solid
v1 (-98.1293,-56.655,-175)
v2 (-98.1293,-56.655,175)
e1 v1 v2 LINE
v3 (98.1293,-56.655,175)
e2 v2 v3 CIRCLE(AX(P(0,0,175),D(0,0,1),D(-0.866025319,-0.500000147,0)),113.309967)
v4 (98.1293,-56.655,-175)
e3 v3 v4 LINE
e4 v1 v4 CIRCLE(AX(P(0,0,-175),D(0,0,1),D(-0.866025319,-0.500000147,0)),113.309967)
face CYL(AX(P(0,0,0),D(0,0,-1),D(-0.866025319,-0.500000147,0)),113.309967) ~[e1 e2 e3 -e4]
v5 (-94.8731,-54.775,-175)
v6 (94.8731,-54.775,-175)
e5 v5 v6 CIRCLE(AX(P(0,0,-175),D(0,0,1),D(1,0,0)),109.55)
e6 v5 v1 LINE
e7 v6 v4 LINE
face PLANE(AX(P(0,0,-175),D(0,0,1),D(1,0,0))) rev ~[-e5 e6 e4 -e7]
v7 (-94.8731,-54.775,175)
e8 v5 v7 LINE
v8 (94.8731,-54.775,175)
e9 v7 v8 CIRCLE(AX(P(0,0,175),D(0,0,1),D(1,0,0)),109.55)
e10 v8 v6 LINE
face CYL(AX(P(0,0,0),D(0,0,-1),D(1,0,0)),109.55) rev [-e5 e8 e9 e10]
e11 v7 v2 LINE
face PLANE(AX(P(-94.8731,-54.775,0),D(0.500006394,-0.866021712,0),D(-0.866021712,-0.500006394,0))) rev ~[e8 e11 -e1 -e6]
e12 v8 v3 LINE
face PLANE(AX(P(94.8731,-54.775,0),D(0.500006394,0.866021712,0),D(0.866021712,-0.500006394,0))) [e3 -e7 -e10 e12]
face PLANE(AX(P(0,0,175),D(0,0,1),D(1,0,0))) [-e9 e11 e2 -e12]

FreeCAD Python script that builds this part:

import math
import FreeCAD as App
import Part
import Sketcher
from FreeCAD import Vector
Q = App.Units.Quantity

doc = App.newDocument("Part")
body = doc.addObject("PartDesign::Body", "Body")

# Sketch on XY plane
sketch1 = body.newObject("Sketcher::SketchObject", "Sketch")
sketch1.AttachmentSupport = (doc.getObject("XY_Plane"), [""])
sketch1.MapMode = "FlatFace"
sketch1.addGeometry([
    Part.ArcOfCircle(Part.Circle(Vector(0, 0, 0), Vector(0, 0, 1), 109.5), math.radians(-150), math.radians(-30)),
    Part.LineSegment(Vector(-94.9, -54.8, 0), Vector(-98.1, -56.7, 0)),
    Part.ArcOfCircle(Part.Circle(Vector(0, 0, 0), Vector(0, 0, 1), 113.3), math.radians(-150), math.radians(-30)),
    Part.LineSegment(Vector(98.1, -56.7, 0), Vector(94.9, -54.8, 0)),
], False)
sketch1.addConstraint([
    Sketcher.Constraint("Coincident", 0, 1, 1, 1),
    Sketcher.Constraint("Coincident", 1, 2, 2, 1),
    Sketcher.Constraint("Coincident", 2, 2, 3, 1),
    Sketcher.Constraint("Coincident", 3, 2, 0, 2),
    Sketcher.Constraint("Coincident", 0, 3, -1, 1),
    Sketcher.Constraint("Coincident", 2, 3, -1, 1),
    Sketcher.Constraint("Horizontal", 1, 2, 2, 2),
    Sketcher.Constraint("Horizontal", 0, 1, 3, 2),
    Sketcher.Constraint("Radius", 0, Q("109.55 mm")),
    Sketcher.Constraint("Distance", 1, Q("3.76 mm")),
    Sketcher.Constraint("Angle", 1, Q("-149.9996 deg")),
    Sketcher.Constraint("DistanceX", 0, 1, -1, 1, Q("94.873 mm")),
])
pad1 = body.newObject("PartDesign::Pad", "Pad")
pad1.Profile = sketch1
pad1.Length = 350
pad1.Midplane = True

doc.recompute()
